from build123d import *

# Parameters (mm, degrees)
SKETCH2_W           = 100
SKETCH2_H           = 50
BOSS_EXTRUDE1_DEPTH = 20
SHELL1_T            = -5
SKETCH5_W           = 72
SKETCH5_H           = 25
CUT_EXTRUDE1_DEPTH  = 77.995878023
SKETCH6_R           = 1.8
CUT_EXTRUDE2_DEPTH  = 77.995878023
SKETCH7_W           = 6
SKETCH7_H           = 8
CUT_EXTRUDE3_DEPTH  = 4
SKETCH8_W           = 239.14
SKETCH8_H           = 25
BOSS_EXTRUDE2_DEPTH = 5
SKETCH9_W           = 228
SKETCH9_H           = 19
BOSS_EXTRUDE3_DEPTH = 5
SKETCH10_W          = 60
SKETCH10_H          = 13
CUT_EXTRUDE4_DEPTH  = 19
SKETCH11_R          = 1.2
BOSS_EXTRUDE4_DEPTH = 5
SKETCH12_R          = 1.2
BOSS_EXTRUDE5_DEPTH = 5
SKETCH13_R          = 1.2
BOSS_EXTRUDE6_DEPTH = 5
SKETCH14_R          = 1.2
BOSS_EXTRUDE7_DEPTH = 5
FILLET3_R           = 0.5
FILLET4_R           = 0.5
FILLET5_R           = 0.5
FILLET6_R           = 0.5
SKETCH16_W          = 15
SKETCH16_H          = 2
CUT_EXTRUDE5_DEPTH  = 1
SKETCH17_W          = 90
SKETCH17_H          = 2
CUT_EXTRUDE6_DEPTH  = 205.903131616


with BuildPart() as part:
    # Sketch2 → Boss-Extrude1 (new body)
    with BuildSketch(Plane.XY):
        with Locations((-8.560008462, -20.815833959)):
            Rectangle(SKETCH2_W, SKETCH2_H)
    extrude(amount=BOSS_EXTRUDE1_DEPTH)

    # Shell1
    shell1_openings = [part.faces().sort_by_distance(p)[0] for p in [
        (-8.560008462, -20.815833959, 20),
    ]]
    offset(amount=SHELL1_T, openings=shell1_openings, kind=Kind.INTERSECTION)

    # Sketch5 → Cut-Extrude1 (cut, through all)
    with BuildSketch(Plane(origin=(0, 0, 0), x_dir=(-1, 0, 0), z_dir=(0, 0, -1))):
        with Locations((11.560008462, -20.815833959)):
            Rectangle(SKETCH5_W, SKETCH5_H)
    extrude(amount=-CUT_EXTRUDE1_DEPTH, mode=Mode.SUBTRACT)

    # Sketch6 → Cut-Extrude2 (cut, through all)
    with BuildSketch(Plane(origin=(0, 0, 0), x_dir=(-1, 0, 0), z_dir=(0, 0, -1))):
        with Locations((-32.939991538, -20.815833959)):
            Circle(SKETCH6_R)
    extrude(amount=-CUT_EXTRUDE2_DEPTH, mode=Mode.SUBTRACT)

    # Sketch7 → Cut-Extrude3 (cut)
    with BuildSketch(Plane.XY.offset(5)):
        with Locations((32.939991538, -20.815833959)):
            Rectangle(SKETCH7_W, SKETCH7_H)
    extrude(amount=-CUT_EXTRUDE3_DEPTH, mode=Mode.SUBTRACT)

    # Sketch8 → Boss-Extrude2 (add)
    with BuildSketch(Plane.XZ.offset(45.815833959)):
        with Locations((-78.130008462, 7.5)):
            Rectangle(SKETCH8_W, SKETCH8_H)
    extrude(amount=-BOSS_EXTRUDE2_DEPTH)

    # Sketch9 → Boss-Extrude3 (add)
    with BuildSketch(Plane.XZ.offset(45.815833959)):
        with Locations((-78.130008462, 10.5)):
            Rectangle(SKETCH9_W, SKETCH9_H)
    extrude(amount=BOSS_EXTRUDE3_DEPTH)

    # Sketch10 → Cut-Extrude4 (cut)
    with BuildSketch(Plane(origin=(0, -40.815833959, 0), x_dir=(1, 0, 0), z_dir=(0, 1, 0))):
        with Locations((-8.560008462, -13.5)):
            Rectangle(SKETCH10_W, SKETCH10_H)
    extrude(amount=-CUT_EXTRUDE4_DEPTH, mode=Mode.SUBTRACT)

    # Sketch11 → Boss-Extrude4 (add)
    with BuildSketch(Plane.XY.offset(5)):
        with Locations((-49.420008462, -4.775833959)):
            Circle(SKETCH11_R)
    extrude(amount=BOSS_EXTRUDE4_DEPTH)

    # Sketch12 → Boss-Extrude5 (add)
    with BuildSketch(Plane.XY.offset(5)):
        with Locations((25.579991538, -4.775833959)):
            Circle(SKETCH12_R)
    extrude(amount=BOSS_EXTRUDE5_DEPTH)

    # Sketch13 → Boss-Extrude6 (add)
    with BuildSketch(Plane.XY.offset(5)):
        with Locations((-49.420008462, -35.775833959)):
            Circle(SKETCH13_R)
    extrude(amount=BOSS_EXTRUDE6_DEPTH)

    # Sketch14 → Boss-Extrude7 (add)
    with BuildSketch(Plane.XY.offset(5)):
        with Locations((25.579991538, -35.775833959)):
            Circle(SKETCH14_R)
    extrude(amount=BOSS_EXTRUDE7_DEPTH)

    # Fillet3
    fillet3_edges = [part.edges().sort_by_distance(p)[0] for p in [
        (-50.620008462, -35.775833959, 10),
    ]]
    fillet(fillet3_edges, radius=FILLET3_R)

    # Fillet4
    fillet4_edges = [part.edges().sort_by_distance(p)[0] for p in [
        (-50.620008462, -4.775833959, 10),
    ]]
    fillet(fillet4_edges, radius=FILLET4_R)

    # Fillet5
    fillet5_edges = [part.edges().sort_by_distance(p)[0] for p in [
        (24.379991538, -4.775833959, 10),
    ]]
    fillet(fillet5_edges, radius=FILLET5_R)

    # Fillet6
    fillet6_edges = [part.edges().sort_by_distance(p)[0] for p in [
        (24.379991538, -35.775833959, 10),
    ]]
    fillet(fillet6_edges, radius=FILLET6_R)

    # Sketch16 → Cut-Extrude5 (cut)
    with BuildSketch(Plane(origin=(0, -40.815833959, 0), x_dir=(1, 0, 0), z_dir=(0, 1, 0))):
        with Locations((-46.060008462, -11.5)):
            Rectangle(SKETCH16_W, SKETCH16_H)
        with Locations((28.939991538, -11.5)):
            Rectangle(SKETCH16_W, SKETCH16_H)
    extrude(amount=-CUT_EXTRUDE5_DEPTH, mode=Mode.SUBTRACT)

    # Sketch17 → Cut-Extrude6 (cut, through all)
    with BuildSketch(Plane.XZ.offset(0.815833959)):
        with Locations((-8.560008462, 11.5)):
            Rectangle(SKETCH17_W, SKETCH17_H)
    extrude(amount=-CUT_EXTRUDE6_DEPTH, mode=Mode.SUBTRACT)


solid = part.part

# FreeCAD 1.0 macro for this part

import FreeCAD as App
import Part
import Sketcher
Q = App.Units.Quantity


def edges_at(feature, points):
    """Names of the edges that pass closest to the given points."""
    edges = feature.Shape.Edges
    near = lambda p: min(range(len(edges)), key=lambda i: edges[i].distToShape(Part.Vertex(*p))[0])
    return sorted({f"Edge{near(p) + 1}" for p in points})


def faces_at(feature, points):
    """Names of the faces that lie closest to the given points."""
    faces = feature.Shape.Faces
    near = lambda p: min(range(len(faces)), key=lambda i: faces[i].distToShape(Part.Vertex(*p))[0])
    return sorted({f"Face{near(p) + 1}" for p in points})

doc = App.newDocument("Part")
params = doc.addObject("Spreadsheet::Sheet", "Params")
for row, (alias, value) in enumerate([
    ("sketch1_width", "100 mm"),
    ("sketch1_height", "50 mm"),
    ("pad1_length", "20 mm"),
    ("thickness_wall", "5 mm"),
    ("sketch2_width", "72 mm"),
    ("sketch2_height", "25 mm"),
    ("sketch3_diameter", "3.6 mm"),
    ("sketch4_width", "6 mm"),
    ("sketch4_height", "8 mm"),
    ("pocket3_length", "4 mm"),
    ("sketch5_height", "25 mm"),
    ("sketch5_width", "239.14 mm"),
    ("pad2_length", "5 mm"),
    ("sketch6_width", "228 mm"),
    ("sketch6_height", "19 mm"),
    ("pad3_length", "5 mm"),
    ("sketch7_width", "60 mm"),
    ("sketch7_height", "13 mm"),
    ("pocket4_length", "19 mm"),
    ("sketch8_diameter", "2.4 mm"),
    ("pad4_length", "5 mm"),
    ("sketch9_diameter", "2.4 mm"),
    ("pad5_length", "5 mm"),
    ("sketch10_diameter", "2.4 mm"),
    ("pad6_length", "5 mm"),
    ("sketch11_diameter", "2.4 mm"),
    ("pad7_length", "5 mm"),
    ("fillet_radius", "0.5 mm"),
    ("fillet2_radius", "0.5 mm"),
    ("fillet3_radius", "0.5 mm"),
    ("fillet4_radius", "0.5 mm"),
    ("sketch12_width", "15 mm"),
    ("sketch12_height", "2 mm"),
    ("pocket5_length", "1 mm"),
    ("sketch13_width", "90 mm"),
    ("sketch13_height", "2 mm"),
], start=1):
    params.set(f"A{row}", alias)
    params.set(f"B{row}", "=" + value)
    params.setAlias(f"B{row}", alias)

body = doc.addObject("PartDesign::Body", "Body")

# Sketch on XY plane
sketch1 = body.newObject("Sketcher::SketchObject", "Sketch")
sketch1.AttachmentSupport = (doc.getObject("XY_Plane"), [""])
sketch1.MapMode = "FlatFace"
sketch1.addGeometry([
    Part.LineSegment(App.Vector(-59, 4, 0), App.Vector(-59, -46, 0)),
    Part.LineSegment(App.Vector(-59, -46, 0), App.Vector(41, -46, 0)),
    Part.LineSegment(App.Vector(41, -46, 0), App.Vector(41, 4, 0)),
    Part.LineSegment(App.Vector(41, 4, 0), App.Vector(-59, 4, 0)),
], False)
sketch1.addConstraint([
    Sketcher.Constraint("Coincident", 0, 2, 1, 1),
    Sketcher.Constraint("Coincident", 1, 2, 2, 1),
    Sketcher.Constraint("Coincident", 2, 2, 3, 1),
    Sketcher.Constraint("Coincident", 3, 2, 0, 1),
    Sketcher.Constraint("Vertical", 0),
    Sketcher.Constraint("Horizontal", 1),
    Sketcher.Constraint("Vertical", 2),
    Sketcher.Constraint("Horizontal", 3),
    Sketcher.Constraint("DistanceX", 1, 1, 1, 2, Q("100 mm")),
    Sketcher.Constraint("DistanceY", 0, 2, 0, 1, Q("50 mm")),
    Sketcher.Constraint("DistanceX", 0, 2, -1, 1, Q("58.560008 mm")),
    Sketcher.Constraint("DistanceY", 0, 2, -1, 1, Q("45.815834 mm")),
])
sketch1.setExpression("Constraints[8]", "Params.sketch1_width")
sketch1.setExpression("Constraints[9]", "Params.sketch1_height")
pad1 = body.newObject("PartDesign::Pad", "Pad")
pad1.Profile = sketch1
pad1.setExpression("Length", "Params.pad1_length")
doc.recompute()

thickness = body.newObject("PartDesign::Thickness", "Thickness")
thickness.Base = (pad1, faces_at(pad1, [(-8.56, -20.816, 20)]))
thickness.setExpression("Value", "Params.thickness_wall")
thickness.Reversed = True
thickness.Join = "Intersection"

# Sketch on XY plane
sketch2 = body.newObject("Sketcher::SketchObject", "Sketch001")
sketch2.AttachmentSupport = (doc.getObject("XY_Plane"), [""])
sketch2.MapMode = "FlatFace"
sketch2.addGeometry([
    Part.LineSegment(App.Vector(24, -8, 0), App.Vector(24, -33, 0)),
    Part.LineSegment(App.Vector(24, -33, 0), App.Vector(-48, -33, 0)),
    Part.LineSegment(App.Vector(-48, -33, 0), App.Vector(-48, -8, 0)),
    Part.LineSegment(App.Vector(-48, -8, 0), App.Vector(24, -8, 0)),
], False)
sketch2.addConstraint([
    Sketcher.Constraint("Coincident", 0, 2, 1, 1),
    Sketcher.Constraint("Coincident", 1, 2, 2, 1),
    Sketcher.Constraint("Coincident", 2, 2, 3, 1),
    Sketcher.Constraint("Coincident", 3, 2, 0, 1),
    Sketcher.Constraint("Vertical", 0),
    Sketcher.Constraint("Horizontal", 1),
    Sketcher.Constraint("Vertical", 2),
    Sketcher.Constraint("Horizontal", 3),
    Sketcher.Constraint("DistanceX", 1, 2, 1, 1, Q("72 mm")),
    Sketcher.Constraint("DistanceY", 0, 2, 0, 1, Q("25 mm")),
    Sketcher.Constraint("DistanceX", -1, 1, 0, 2, Q("24.439992 mm")),
    Sketcher.Constraint("DistanceY", 0, 2, -1, 1, Q("33.315834 mm")),
])
sketch2.setExpression("Constraints[8]", "Params.sketch2_width")
sketch2.setExpression("Constraints[9]", "Params.sketch2_height")
pocket1 = body.newObject("PartDesign::Pocket", "Pocket")
pocket1.Profile = sketch2
pocket1.Type = "ThroughAll"
pocket1.Reversed = True

# Sketch on XY plane
sketch3 = body.newObject("Sketcher::SketchObject", "Sketch002")
sketch3.AttachmentSupport = (doc.getObject("XY_Plane"), [""])
sketch3.MapMode = "FlatFace"
sketch3.addGeometry(Part.Circle(App.Vector(32.9, -20.8, 0), App.Vector(0, 0, 1), 1.8), False)
sketch3.addConstraint([
    Sketcher.Constraint("Diameter", 0, Q("3.6 mm")),
    Sketcher.Constraint("DistanceX", -1, 1, 0, 3, Q("32.939992 mm")),
    Sketcher.Constraint("DistanceY", 0, 3, -1, 1, Q("20.815834 mm")),
])
sketch3.setExpression("Constraints[0]", "Params.sketch3_diameter")
pocket2 = body.newObject("PartDesign::Pocket", "Pocket001")
pocket2.Profile = sketch3
pocket2.Type = "ThroughAll"
pocket2.Reversed = True

# Sketch on XY plane
sketch4 = body.newObject("Sketcher::SketchObject", "Sketch003")
sketch4.AttachmentSupport = (doc.getObject("XY_Plane"), [""])
sketch4.MapMode = "FlatFace"
sketch4.AttachmentOffset = App.Placement(App.Vector(0, 0, 5), App.Rotation())
sketch4.addGeometry([
    Part.LineSegment(App.Vector(30, -17, 0), App.Vector(30, -25, 0)),
    Part.LineSegment(App.Vector(30, -25, 0), App.Vector(36, -25, 0)),
    Part.LineSegment(App.Vector(36, -25, 0), App.Vector(36, -17, 0)),
    Part.LineSegment(App.Vector(36, -17, 0), App.Vector(30, -17, 0)),
], False)
sketch4.addConstraint([
    Sketcher.Constraint("Coincident", 0, 2, 1, 1),
    Sketcher.Constraint("Coincident", 1, 2, 2, 1),
    Sketcher.Constraint("Coincident", 2, 2, 3, 1),
    Sketcher.Constraint("Coincident", 3, 2, 0, 1),
    Sketcher.Constraint("Vertical", 0),
    Sketcher.Constraint("Horizontal", 1),
    Sketcher.Constraint("Vertical", 2),
    Sketcher.Constraint("Horizontal", 3),
    Sketcher.Constraint("DistanceX", 1, 1, 1, 2, Q("6 mm")),
    Sketcher.Constraint("DistanceY", 0, 2, 0, 1, Q("8 mm")),
    Sketcher.Constraint("DistanceX", -1, 1, 0, 2, Q("29.939992 mm")),
    Sketcher.Constraint("DistanceY", 0, 2, -1, 1, Q("24.815834 mm")),
])
sketch4.setExpression("Constraints[8]", "Params.sketch4_width")
sketch4.setExpression("Constraints[9]", "Params.sketch4_height")
pocket3 = body.newObject("PartDesign::Pocket", "Pocket002")
pocket3.Profile = sketch4
pocket3.setExpression("Length", "Params.pocket3_length")

# Sketch on XZ plane
sketch5 = body.newObject("Sketcher::SketchObject", "Sketch004")
sketch5.AttachmentSupport = (doc.getObject("XZ_Plane"), [""])
sketch5.MapMode = "FlatFace"
sketch5.AttachmentOffset = App.Placement(App.Vector(0, 0, 45.815834), App.Rotation())
sketch5.addGeometry([
    Part.LineSegment(App.Vector(-198, 20, 0), App.Vector(-198, -5, 0)),
    Part.LineSegment(App.Vector(-198, -5, 0), App.Vector(41, -5, 0)),
    Part.LineSegment(App.Vector(41, -5, 0), App.Vector(41, 20, 0)),
    Part.LineSegment(App.Vector(41, 20, 0), App.Vector(-198, 20, 0)),
], False)
sketch5.addConstraint([
    Sketcher.Constraint("Coincident", 0, 2, 1, 1),
    Sketcher.Constraint("Coincident", 1, 2, 2, 1),
    Sketcher.Constraint("Coincident", 2, 2, 3, 1),
    Sketcher.Constraint("Coincident", 3, 2, 0, 1),
    Sketcher.Constraint("Vertical", 0),
    Sketcher.Constraint("Horizontal", 1),
    Sketcher.Constraint("Vertical", 2),
    Sketcher.Constraint("Horizontal", 3),
    Sketcher.Constraint("DistanceY", 0, 2, 0, 1, Q("25 mm")),
    Sketcher.Constraint("DistanceY", 0, 2, -1, 1, Q("5 mm")),
    Sketcher.Constraint("DistanceX", 1, 1, 1, 2, Q("239.14 mm")),
    Sketcher.Constraint("DistanceX", 0, 2, -1, 1, Q("197.700008 mm")),
])
sketch5.setExpression("Constraints[8]", "Params.sketch5_height")
sketch5.setExpression("Constraints[10]", "Params.sketch5_width")
pad2 = body.newObject("PartDesign::Pad", "Pad001")
pad2.Profile = sketch5
pad2.setExpression("Length", "Params.pad2_length")
pad2.Reversed = True

# Sketch on XZ plane
sketch6 = body.newObject("Sketcher::SketchObject", "Sketch005")
sketch6.AttachmentSupport = (doc.getObject("XZ_Plane"), [""])
sketch6.MapMode = "FlatFace"
sketch6.AttachmentOffset = App.Placement(App.Vector(0, 0, 45.815834), App.Rotation())
sketch6.addGeometry([
    Part.LineSegment(App.Vector(-192, 20, 0), App.Vector(-192, 1, 0)),
    Part.LineSegment(App.Vector(-192, 1, 0), App.Vector(36, 1, 0)),
    Part.LineSegment(App.Vector(36, 1, 0), App.Vector(36, 20, 0)),
    Part.LineSegment(App.Vector(36, 20, 0), App.Vector(-192, 20, 0)),
], False)
sketch6.addConstraint([
    Sketcher.Constraint("Coincident", 0, 2, 1, 1),
    Sketcher.Constraint("Coincident", 1, 2, 2, 1),
    Sketcher.Constraint("Coincident", 2, 2, 3, 1),
    Sketcher.Constraint("Coincident", 3, 2, 0, 1),
    Sketcher.Constraint("Vertical", 0),
    Sketcher.Constraint("Horizontal", 1),
    Sketcher.Constraint("Vertical", 2),
    Sketcher.Constraint("Horizontal", 3),
    Sketcher.Constraint("DistanceX", 1, 1, 1, 2, Q("228 mm")),
    Sketcher.Constraint("DistanceY", 0, 2, 0, 1, Q("19 mm")),
    Sketcher.Constraint("DistanceY", -1, 1, 0, 2, Q("1 mm")),
    Sketcher.Constraint("DistanceX", 0, 2, -1, 1, Q("192.130008 mm")),
])
sketch6.setExpression("Constraints[8]", "Params.sketch6_width")
sketch6.setExpression("Constraints[9]", "Params.sketch6_height")
pad3 = body.newObject("PartDesign::Pad", "Pad002")
pad3.Profile = sketch6
pad3.setExpression("Length", "Params.pad3_length")

# Sketch on XZ plane
sketch7 = body.newObject("Sketcher::SketchObject", "Sketch006")
sketch7.AttachmentSupport = (doc.getObject("XZ_Plane"), [""])
sketch7.MapMode = "FlatFace"
sketch7.AttachmentOffset = App.Placement(App.Vector(0, 0, 40.815834), App.Rotation())
sketch7.addGeometry([
    Part.LineSegment(App.Vector(-39, 7, 0), App.Vector(-39, 20, 0)),
    Part.LineSegment(App.Vector(-39, 20, 0), App.Vector(21, 20, 0)),
    Part.LineSegment(App.Vector(21, 20, 0), App.Vector(21, 7, 0)),
    Part.LineSegment(App.Vector(21, 7, 0), App.Vector(-39, 7, 0)),
], False)
sketch7.addConstraint([
    Sketcher.Constraint("Coincident", 0, 2, 1, 1),
    Sketcher.Constraint("Coincident", 1, 2, 2, 1),
    Sketcher.Constraint("Coincident", 2, 2, 3, 1),
    Sketcher.Constraint("Coincident", 3, 2, 0, 1),
    Sketcher.Constraint("Vertical", 0),
    Sketcher.Constraint("Horizontal", 1),
    Sketcher.Constraint("Vertical", 2),
    Sketcher.Constraint("Horizontal", 3),
    Sketcher.Constraint("DistanceX", 1, 1, 1, 2, Q("60 mm")),
    Sketcher.Constraint("DistanceY", 0, 1, 0, 2, Q("13 mm")),
    Sketcher.Constraint("DistanceY", -1, 1, 0, 2, Q("20 mm")),
    Sketcher.Constraint("DistanceX", 0, 2, -1, 1, Q("38.560008 mm")),
])
sketch7.setExpression("Constraints[8]", "Params.sketch7_width")
sketch7.setExpression("Constraints[9]", "Params.sketch7_height")
pocket4 = body.newObject("PartDesign::Pocket", "Pocket003")
pocket4.Profile = sketch7
pocket4.setExpression("Length", "Params.pocket4_length")
pocket4.Reversed = True

# Sketch on XY plane
sketch8 = body.newObject("Sketcher::SketchObject", "Sketch007")
sketch8.AttachmentSupport = (doc.getObject("XY_Plane"), [""])
sketch8.MapMode = "FlatFace"
sketch8.AttachmentOffset = App.Placement(App.Vector(0, 0, 5), App.Rotation())
sketch8.addGeometry(Part.Circle(App.Vector(-49.4, -4.8, 0), App.Vector(0, 0, 1), 1.2), False)
sketch8.addConstraint([
    Sketcher.Constraint("Diameter", 0, Q("2.4 mm")),
    Sketcher.Constraint("DistanceX", 0, 3, -1, 1, Q("49.420008 mm")),
    Sketcher.Constraint("DistanceY", 0, 3, -1, 1, Q("4.775834 mm")),
])
sketch8.setExpression("Constraints[0]", "Params.sketch8_diameter")
pad4 = body.newObject("PartDesign::Pad", "Pad003")
pad4.Profile = sketch8
pad4.setExpression("Length", "Params.pad4_length")

# Sketch on XY plane
sketch9 = body.newObject("Sketcher::SketchObject", "Sketch008")
sketch9.AttachmentSupport = (doc.getObject("XY_Plane"), [""])
sketch9.MapMode = "FlatFace"
sketch9.AttachmentOffset = App.Placement(App.Vector(0, 0, 5), App.Rotation())
sketch9.addGeometry(Part.Circle(App.Vector(25.6, -4.8, 0), App.Vector(0, 0, 1), 1.2), False)
sketch9.addConstraint([
    Sketcher.Constraint("Diameter", 0, Q("2.4 mm")),
    Sketcher.Constraint("DistanceX", -1, 1, 0, 3, Q("25.579992 mm")),
    Sketcher.Constraint("DistanceY", 0, 3, -1, 1, Q("4.775834 mm")),
])
sketch9.setExpression("Constraints[0]", "Params.sketch9_diameter")
pad5 = body.newObject("PartDesign::Pad", "Pad004")
pad5.Profile = sketch9
pad5.setExpression("Length", "Params.pad5_length")

# Sketch on XY plane
sketch10 = body.newObject("Sketcher::SketchObject", "Sketch009")
sketch10.AttachmentSupport = (doc.getObject("XY_Plane"), [""])
sketch10.MapMode = "FlatFace"
sketch10.AttachmentOffset = App.Placement(App.Vector(0, 0, 5), App.Rotation())
sketch10.addGeometry(Part.Circle(App.Vector(-49.4, -35.8, 0), App.Vector(0, 0, 1), 1.2), False)
sketch10.addConstraint([
    Sketcher.Constraint("Diameter", 0, Q("2.4 mm")),
    Sketcher.Constraint("DistanceX", 0, 3, -1, 1, Q("49.420008 mm")),
    Sketcher.Constraint("DistanceY", 0, 3, -1, 1, Q("35.775834 mm")),
])
sketch10.setExpression("Constraints[0]", "Params.sketch10_diameter")
pad6 = body.newObject("PartDesign::Pad", "Pad005")
pad6.Profile = sketch10
pad6.setExpression("Length", "Params.pad6_length")

# Sketch on XY plane
sketch11 = body.newObject("Sketcher::SketchObject", "Sketch010")
sketch11.AttachmentSupport = (doc.getObject("XY_Plane"), [""])
sketch11.MapMode = "FlatFace"
sketch11.AttachmentOffset = App.Placement(App.Vector(0, 0, 5), App.Rotation())
sketch11.addGeometry(Part.Circle(App.Vector(25.6, -35.8, 0), App.Vector(0, 0, 1), 1.2), False)
sketch11.addConstraint([
    Sketcher.Constraint("Diameter", 0, Q("2.4 mm")),
    Sketcher.Constraint("DistanceX", -1, 1, 0, 3, Q("25.579992 mm")),
    Sketcher.Constraint("DistanceY", 0, 3, -1, 1, Q("35.775834 mm")),
])
sketch11.setExpression("Constraints[0]", "Params.sketch11_diameter")
pad7 = body.newObject("PartDesign::Pad", "Pad006")
pad7.Profile = sketch11
pad7.setExpression("Length", "Params.pad7_length")
doc.recompute()

fillet = body.newObject("PartDesign::Fillet", "Fillet")
fillet.Base = (pad7, edges_at(pad7, [(-50.62, -35.776, 10)]))
fillet.setExpression("Radius", "Params.fillet_radius")
doc.recompute()

fillet2 = body.newObject("PartDesign::Fillet", "Fillet001")
fillet2.Base = (fillet, edges_at(fillet, [(-50.62, -4.776, 10)]))
fillet2.setExpression("Radius", "Params.fillet2_radius")
doc.recompute()

fillet3 = body.newObject("PartDesign::Fillet", "Fillet002")
fillet3.Base = (fillet2, edges_at(fillet2, [(24.38, -4.776, 10)]))
fillet3.setExpression("Radius", "Params.fillet3_radius")
doc.recompute()

fillet4 = body.newObject("PartDesign::Fillet", "Fillet003")
fillet4.Base = (fillet3, edges_at(fillet3, [(24.38, -35.776, 10)]))
fillet4.setExpression("Radius", "Params.fillet4_radius")

# Sketch on XZ plane
sketch12 = body.newObject("Sketcher::SketchObject", "Sketch011")
sketch12.AttachmentSupport = (doc.getObject("XZ_Plane"), [""])
sketch12.MapMode = "FlatFace"
sketch12.AttachmentOffset = App.Placement(App.Vector(0, 0, 40.815834), App.Rotation())
sketch12.addGeometry([
    Part.LineSegment(App.Vector(-53.6, 10.5, 0), App.Vector(-53.6, 12.5, 0)),  # 0
    Part.LineSegment(App.Vector(-53.6, 12.5, 0), App.Vector(-38.6, 12.5, 0)),  # 1
    Part.LineSegment(App.Vector(-38.6, 12.5, 0), App.Vector(-38.6, 10.5, 0)),  # 2
    Part.LineSegment(App.Vector(-38.6, 10.5, 0), App.Vector(-53.6, 10.5, 0)),  # 3
    Part.LineSegment(App.Vector(21.4, 10.5, 0), App.Vector(21.4, 12.5, 0)),  # 4
    Part.LineSegment(App.Vector(21.4, 12.5, 0), App.Vector(36.4, 12.5, 0)),  # 5
    Part.LineSegment(App.Vector(36.4, 12.5, 0), App.Vector(36.4, 10.5, 0)),  # 6
    Part.LineSegment(App.Vector(36.4, 10.5, 0), App.Vector(21.4, 10.5, 0)),  # 7
], False)
sketch12.addConstraint([
    Sketcher.Constraint("Coincident", 0, 2, 1, 1),
    Sketcher.Constraint("Coincident", 1, 2, 2, 1),
    Sketcher.Constraint("Coincident", 2, 2, 3, 1),
    Sketcher.Constraint("Coincident", 3, 2, 0, 1),
    Sketcher.Constraint("Coincident", 4, 2, 5, 1),
    Sketcher.Constraint("Coincident", 5, 2, 6, 1),
    Sketcher.Constraint("Coincident", 6, 2, 7, 1),
    Sketcher.Constraint("Coincident", 7, 2, 4, 1),
    Sketcher.Constraint("Vertical", 0),
    Sketcher.Constraint("Horizontal", 1),
    Sketcher.Constraint("Vertical", 2),
    Sketcher.Constraint("Horizontal", 3),
    Sketcher.Constraint("Vertical", 4),
    Sketcher.Constraint("Horizontal", 5),
    Sketcher.Constraint("Vertical", 6),
    Sketcher.Constraint("Horizontal", 7),
    Sketcher.Constraint("Horizontal", 1, 2, 4, 2),
    Sketcher.Constraint("Horizontal", 3, 2, 6, 2),
    Sketcher.Constraint("Equal", 3, 5),
    Sketcher.Constraint("DistanceX", 1, 1, 1, 2, Q("15 mm")),
    Sketcher.Constraint("DistanceY", 0, 1, 0, 2, Q("2 mm")),
    Sketcher.Constraint("DistanceX", 1, 2, 4, 2, Q("60 mm")),
    Sketcher.Constraint("DistanceY", -1, 1, 0, 2, Q("12.5 mm")),
    Sketcher.Constraint("DistanceX", 0, 2, -1, 1, Q("53.560008 mm")),
])
sketch12.setExpression("Constraints[19]", "Params.sketch12_width")
sketch12.setExpression("Constraints[20]", "Params.sketch12_height")
pocket5 = body.newObject("PartDesign::Pocket", "Pocket004")
pocket5.Profile = sketch12
pocket5.setExpression("Length", "Params.pocket5_length")
pocket5.Reversed = True

# Sketch on XZ plane
sketch13 = body.newObject("Sketcher::SketchObject", "Sketch012")
sketch13.AttachmentSupport = (doc.getObject("XZ_Plane"), [""])
sketch13.MapMode = "FlatFace"
sketch13.AttachmentOffset = App.Placement(App.Vector(0, 0, 0.815834), App.Rotation())
sketch13.addGeometry([
    Part.LineSegment(App.Vector(-53.6, 12.5, 0), App.Vector(-53.6, 10.5, 0)),
    Part.LineSegment(App.Vector(-53.6, 10.5, 0), App.Vector(36.4, 10.5, 0)),
    Part.LineSegment(App.Vector(36.4, 10.5, 0), App.Vector(36.4, 12.5, 0)),
    Part.LineSegment(App.Vector(36.4, 12.5, 0), App.Vector(-53.6, 12.5, 0)),
], False)
sketch13.addConstraint([
    Sketcher.Constraint("Coincident", 0, 2, 1, 1),
    Sketcher.Constraint("Coincident", 1, 2, 2, 1),
    Sketcher.Constraint("Coincident", 2, 2, 3, 1),
    Sketcher.Constraint("Coincident", 3, 2, 0, 1),
    Sketcher.Constraint("Vertical", 0),
    Sketcher.Constraint("Horizontal", 1),
    Sketcher.Constraint("Vertical", 2),
    Sketcher.Constraint("Horizontal", 3),
    Sketcher.Constraint("DistanceX", 1, 1, 1, 2, Q("90 mm")),
    Sketcher.Constraint("DistanceY", 0, 2, 0, 1, Q("2 mm")),
    Sketcher.Constraint("DistanceY", -1, 1, 0, 2, Q("10.5 mm")),
    Sketcher.Constraint("DistanceX", 0, 2, -1, 1, Q("53.560008 mm")),
])
sketch13.setExpression("Constraints[8]", "Params.sketch13_width")
sketch13.setExpression("Constraints[9]", "Params.sketch13_height")
pocket6 = body.newObject("PartDesign::Pocket", "Pocket005")
pocket6.Profile = sketch13
pocket6.Type = "ThroughAll"

doc.recompute()
